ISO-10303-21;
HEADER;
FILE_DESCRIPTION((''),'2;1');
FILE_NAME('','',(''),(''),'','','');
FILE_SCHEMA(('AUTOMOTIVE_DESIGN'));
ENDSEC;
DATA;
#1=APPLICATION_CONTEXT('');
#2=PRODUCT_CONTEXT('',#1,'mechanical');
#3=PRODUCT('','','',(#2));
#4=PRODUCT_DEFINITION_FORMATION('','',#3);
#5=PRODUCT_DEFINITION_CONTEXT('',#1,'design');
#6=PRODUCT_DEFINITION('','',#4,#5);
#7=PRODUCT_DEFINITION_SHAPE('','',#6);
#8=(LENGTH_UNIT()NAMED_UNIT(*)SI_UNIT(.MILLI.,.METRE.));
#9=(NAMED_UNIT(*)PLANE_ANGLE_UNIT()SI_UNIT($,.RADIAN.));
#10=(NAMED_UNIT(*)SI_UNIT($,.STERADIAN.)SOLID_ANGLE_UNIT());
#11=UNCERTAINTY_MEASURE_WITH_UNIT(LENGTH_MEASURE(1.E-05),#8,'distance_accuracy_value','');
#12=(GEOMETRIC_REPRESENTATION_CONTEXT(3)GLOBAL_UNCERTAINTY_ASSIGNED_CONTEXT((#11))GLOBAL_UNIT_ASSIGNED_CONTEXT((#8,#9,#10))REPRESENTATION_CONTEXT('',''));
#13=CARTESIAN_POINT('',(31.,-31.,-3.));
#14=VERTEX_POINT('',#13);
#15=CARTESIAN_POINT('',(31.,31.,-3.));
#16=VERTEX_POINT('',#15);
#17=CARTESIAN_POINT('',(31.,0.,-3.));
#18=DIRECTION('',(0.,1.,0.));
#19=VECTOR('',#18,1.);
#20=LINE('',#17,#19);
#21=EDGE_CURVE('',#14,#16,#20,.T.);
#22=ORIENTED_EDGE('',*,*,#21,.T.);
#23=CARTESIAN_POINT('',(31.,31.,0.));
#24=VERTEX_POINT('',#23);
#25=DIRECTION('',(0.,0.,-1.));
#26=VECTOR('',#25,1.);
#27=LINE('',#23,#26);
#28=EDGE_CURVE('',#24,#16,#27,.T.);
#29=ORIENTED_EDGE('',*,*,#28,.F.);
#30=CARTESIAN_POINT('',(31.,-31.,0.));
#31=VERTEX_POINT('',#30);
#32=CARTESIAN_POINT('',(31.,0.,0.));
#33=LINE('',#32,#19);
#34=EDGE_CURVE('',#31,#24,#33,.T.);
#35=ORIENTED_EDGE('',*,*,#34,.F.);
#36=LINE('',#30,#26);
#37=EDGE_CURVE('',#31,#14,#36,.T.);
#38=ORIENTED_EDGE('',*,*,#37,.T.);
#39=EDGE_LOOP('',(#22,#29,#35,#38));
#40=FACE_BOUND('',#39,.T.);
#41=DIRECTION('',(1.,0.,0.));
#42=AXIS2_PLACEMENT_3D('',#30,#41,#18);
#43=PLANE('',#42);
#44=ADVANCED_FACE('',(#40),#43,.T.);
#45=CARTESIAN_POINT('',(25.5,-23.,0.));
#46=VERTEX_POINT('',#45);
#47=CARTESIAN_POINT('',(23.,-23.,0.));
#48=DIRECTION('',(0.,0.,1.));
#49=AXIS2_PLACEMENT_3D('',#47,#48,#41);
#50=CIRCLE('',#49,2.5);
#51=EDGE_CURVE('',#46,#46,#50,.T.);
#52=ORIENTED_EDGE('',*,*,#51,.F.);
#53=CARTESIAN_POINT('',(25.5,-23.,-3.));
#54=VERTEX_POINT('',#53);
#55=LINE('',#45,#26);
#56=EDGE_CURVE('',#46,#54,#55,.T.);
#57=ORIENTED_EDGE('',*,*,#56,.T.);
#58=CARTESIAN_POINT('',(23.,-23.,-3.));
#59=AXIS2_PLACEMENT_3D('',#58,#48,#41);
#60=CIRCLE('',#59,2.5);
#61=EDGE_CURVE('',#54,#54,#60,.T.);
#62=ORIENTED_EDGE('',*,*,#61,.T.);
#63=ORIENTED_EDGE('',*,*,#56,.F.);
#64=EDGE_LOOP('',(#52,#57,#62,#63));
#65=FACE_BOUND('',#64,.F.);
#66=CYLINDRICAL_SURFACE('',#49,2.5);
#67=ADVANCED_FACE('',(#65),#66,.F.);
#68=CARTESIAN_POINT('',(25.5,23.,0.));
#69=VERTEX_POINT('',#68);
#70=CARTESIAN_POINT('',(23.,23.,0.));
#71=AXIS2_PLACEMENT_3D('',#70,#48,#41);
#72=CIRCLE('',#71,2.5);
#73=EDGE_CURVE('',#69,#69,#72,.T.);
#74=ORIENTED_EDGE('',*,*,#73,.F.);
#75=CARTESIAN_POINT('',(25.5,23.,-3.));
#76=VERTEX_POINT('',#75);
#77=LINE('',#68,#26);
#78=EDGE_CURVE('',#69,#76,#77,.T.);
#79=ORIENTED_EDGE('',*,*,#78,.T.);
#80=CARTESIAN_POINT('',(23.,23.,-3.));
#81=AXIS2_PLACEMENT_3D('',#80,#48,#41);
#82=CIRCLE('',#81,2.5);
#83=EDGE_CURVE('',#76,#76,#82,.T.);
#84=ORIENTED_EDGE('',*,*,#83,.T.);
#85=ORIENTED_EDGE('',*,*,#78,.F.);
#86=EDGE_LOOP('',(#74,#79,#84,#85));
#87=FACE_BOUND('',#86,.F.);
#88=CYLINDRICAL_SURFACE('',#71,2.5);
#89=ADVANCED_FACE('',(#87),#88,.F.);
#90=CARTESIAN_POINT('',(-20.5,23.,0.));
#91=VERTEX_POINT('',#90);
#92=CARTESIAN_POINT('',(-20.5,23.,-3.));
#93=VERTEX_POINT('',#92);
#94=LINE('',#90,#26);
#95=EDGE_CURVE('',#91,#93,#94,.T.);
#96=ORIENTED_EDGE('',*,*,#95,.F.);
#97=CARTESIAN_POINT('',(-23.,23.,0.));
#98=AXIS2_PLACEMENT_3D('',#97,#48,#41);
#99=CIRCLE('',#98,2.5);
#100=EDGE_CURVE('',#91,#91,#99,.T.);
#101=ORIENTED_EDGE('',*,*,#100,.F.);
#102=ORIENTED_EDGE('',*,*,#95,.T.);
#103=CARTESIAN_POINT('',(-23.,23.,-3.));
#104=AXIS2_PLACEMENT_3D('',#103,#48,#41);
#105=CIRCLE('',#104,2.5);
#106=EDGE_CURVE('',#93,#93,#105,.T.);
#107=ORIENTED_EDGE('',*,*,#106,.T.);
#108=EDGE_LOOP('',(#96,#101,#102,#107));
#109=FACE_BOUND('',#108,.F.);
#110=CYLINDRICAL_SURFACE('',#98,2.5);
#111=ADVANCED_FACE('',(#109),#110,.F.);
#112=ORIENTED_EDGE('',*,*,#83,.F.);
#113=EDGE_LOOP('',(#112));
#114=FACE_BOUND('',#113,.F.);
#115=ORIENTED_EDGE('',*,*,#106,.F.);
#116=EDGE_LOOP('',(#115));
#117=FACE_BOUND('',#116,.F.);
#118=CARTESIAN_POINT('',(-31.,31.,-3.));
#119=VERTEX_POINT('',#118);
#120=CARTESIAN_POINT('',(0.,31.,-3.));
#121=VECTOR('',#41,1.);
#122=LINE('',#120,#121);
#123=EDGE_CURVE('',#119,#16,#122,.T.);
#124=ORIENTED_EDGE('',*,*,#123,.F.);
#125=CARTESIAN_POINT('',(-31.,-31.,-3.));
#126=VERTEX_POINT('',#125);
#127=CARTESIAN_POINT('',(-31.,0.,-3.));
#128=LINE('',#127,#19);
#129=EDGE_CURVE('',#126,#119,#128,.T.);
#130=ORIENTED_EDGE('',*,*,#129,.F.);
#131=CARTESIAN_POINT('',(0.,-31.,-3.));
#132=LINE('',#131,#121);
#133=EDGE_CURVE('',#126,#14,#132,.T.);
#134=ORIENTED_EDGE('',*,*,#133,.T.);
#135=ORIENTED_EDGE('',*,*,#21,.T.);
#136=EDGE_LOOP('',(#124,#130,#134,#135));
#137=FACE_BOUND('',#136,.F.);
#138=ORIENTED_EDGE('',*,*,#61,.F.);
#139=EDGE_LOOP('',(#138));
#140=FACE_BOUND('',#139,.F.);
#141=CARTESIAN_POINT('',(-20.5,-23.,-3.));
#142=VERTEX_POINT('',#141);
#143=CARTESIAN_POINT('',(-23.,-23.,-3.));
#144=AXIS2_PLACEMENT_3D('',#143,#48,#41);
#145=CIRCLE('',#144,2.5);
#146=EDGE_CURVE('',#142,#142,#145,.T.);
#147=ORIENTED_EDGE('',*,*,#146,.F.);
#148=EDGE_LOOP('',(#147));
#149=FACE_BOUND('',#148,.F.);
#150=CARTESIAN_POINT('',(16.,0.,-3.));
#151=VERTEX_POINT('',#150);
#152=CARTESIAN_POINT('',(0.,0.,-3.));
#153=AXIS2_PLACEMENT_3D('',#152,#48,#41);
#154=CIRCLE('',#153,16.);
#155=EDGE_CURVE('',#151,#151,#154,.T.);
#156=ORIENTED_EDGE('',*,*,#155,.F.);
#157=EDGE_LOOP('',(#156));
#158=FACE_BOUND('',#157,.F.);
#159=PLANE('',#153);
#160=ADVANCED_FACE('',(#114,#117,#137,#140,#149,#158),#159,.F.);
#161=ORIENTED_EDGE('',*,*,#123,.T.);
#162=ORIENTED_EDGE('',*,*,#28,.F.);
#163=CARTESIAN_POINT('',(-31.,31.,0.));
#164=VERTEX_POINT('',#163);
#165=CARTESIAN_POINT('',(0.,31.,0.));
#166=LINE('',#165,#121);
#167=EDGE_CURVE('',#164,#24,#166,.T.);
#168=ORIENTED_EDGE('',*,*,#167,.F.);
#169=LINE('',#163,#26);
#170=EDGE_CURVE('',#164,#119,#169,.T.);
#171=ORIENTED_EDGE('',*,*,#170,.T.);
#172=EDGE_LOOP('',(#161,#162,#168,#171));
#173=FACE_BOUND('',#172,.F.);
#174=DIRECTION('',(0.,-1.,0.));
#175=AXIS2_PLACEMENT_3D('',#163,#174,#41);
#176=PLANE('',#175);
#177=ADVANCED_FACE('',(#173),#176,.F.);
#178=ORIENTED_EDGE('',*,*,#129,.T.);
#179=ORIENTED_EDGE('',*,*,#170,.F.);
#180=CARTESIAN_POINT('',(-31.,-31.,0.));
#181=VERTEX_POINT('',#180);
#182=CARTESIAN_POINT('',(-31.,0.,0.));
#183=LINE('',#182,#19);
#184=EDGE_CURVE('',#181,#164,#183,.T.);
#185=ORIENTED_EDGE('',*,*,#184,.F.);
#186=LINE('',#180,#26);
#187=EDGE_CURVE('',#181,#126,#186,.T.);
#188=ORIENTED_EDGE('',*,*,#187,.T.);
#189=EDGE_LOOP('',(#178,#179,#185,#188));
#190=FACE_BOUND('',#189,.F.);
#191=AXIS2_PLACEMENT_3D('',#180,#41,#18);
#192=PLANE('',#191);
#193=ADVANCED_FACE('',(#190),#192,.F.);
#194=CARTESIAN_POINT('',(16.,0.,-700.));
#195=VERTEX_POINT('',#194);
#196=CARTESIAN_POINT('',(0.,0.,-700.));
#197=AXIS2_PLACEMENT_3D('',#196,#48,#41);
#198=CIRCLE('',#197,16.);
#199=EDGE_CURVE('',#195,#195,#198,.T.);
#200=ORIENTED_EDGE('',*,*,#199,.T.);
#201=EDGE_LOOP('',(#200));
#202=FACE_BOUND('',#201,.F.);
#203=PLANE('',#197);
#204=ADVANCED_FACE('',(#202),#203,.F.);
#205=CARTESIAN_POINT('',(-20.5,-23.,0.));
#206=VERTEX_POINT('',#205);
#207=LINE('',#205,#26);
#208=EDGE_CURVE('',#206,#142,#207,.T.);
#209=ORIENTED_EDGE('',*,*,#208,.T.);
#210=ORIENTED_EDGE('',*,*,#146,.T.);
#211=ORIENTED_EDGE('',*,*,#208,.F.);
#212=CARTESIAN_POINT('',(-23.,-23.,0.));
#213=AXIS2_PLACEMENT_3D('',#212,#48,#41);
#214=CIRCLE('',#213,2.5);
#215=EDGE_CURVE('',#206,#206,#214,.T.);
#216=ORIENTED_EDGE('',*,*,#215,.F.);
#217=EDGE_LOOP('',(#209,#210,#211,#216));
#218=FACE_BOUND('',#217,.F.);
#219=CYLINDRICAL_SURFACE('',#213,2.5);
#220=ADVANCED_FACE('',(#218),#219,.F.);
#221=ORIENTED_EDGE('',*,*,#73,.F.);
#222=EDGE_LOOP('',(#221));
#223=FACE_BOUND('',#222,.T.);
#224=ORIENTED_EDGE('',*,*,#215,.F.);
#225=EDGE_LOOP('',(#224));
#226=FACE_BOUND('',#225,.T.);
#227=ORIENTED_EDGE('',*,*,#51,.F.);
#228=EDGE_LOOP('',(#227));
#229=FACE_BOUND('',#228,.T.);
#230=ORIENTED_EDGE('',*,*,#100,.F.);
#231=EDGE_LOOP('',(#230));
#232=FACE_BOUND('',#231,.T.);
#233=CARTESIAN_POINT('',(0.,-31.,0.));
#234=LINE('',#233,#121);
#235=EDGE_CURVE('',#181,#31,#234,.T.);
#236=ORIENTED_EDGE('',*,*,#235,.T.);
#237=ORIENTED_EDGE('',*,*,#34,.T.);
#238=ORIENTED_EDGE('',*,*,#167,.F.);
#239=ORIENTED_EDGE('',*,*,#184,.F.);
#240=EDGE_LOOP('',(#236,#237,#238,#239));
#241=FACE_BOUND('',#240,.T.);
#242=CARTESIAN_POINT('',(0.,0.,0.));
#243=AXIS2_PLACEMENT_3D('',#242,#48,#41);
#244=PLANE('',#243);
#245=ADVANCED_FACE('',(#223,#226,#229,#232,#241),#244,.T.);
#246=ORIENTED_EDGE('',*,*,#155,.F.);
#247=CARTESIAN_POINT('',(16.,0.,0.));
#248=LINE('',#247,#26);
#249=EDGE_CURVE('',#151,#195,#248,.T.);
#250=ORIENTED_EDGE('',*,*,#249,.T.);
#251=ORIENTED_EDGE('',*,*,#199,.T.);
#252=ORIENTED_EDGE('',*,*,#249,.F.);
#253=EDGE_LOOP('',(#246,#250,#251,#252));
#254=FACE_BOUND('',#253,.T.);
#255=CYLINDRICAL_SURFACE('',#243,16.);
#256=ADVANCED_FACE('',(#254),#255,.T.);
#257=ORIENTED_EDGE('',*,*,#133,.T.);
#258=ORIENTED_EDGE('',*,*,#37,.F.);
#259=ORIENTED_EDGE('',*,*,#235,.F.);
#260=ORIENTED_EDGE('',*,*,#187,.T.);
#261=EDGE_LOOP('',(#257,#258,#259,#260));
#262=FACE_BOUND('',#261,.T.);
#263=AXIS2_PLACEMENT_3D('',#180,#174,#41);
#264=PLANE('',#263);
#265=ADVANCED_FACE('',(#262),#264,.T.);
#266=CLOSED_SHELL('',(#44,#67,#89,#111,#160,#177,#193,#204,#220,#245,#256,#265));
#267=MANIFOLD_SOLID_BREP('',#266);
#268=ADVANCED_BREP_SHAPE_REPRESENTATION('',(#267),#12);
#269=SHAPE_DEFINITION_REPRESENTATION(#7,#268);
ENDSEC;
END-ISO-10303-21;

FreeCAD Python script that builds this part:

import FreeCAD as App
import Part
import Sketcher
Q = App.Units.Quantity


def add_polygon(sketch, points):
    """Adds a closed chain of lines whose ends are joined by coincident constraints."""
    first, n = sketch.GeometryCount, len(points)
    for a, b in zip(points, points[1:] + points[:1]):
        sketch.addGeometry(Part.LineSegment(App.Vector(*a, 0), App.Vector(*b, 0)), False)
    for i in range(n):
        sketch.addConstraint(Sketcher.Constraint("Coincident", first + i, 2, first + (i + 1) % n, 1))

doc = App.newDocument("Part")
params = doc.addObject("Spreadsheet::Sheet", "Params")
for row, (alias, value) in enumerate([
    ("sketch1_diameter", "32 mm"),
    ("pad1_length", "700 mm"),
    ("sketch2_width", "62 mm"),
    ("pad2_length", "3 mm"),
    ("sketch3_diameter", "5 mm"),
], start=1):
    params.set(f"A{row}", alias)
    params.set(f"B{row}", "=" + value)
    params.setAlias(f"B{row}", alias)

body = doc.addObject("PartDesign::Body", "Body")

sketch1 = doc.addObject("Sketcher::SketchObject", "Sketch")
body.addObject(sketch1)
sketch1.AttachmentSupport = (doc.XY_Plane, [""])
sketch1.MapMode = "FlatFace"
sketch1.addGeometry(Part.Circle(App.Vector(0, 0, 0), App.Vector(0, 0, 1), 16), False)
sketch1.addConstraint([
    Sketcher.Constraint("Coincident", 0, 3, -1, 1),
    Sketcher.Constraint("Diameter", 0, Q("32 mm")),
])
sketch1.setExpression("Constraints[1]", "Params.sketch1_diameter")
pad1 = doc.addObject("PartDesign::Pad", "Pad")
body.addObject(pad1)
pad1.Profile = sketch1
pad1.setExpression("Length", "Params.pad1_length")
pad1.Reversed = True

sketch2 = doc.addObject("Sketcher::SketchObject", "Sketch001")
body.addObject(sketch2)
sketch2.AttachmentSupport = (doc.XY_Plane, [""])
sketch2.MapMode = "FlatFace"
add_polygon(sketch2, [(-31, 31), (-31, -31), (31, -31), (31, 31)])
sketch2.addConstraint([
    Sketcher.Constraint("Vertical", 0),
    Sketcher.Constraint("Horizontal", 1),
    Sketcher.Constraint("Vertical", 2),
    Sketcher.Constraint("Horizontal", 3),
    Sketcher.Constraint("Symmetric", 0, 2, 2, 2, -1, 1),
    Sketcher.Constraint("Equal", 3, 0),
    Sketcher.Constraint("DistanceX", 1, 1, 1, 2, Q("62 mm")),
])
sketch2.setExpression("Constraints[10]", "Params.sketch2_width")
pad2 = doc.addObject("PartDesign::Pad", "Pad001")
body.addObject(pad2)
pad2.Profile = sketch2
pad2.setExpression("Length", "Params.pad2_length")
pad2.Reversed = True

sketch3 = doc.addObject("Sketcher::SketchObject", "Sketch002")
body.addObject(sketch3)
sketch3.AttachmentSupport = (doc.XY_Plane, [""])
sketch3.MapMode = "FlatFace"
sketch3.addGeometry([
    Part.Circle(App.Vector(-23, 23, 0), App.Vector(0, 0, 1), 2.5),
    Part.Circle(App.Vector(23, 23, 0), App.Vector(0, 0, 1), 2.5),
    Part.Circle(App.Vector(23, -23, 0), App.Vector(0, 0, 1), 2.5),
    Part.Circle(App.Vector(-23, -23, 0), App.Vector(0, 0, 1), 2.5),
], False)
sketch3.addConstraint([
    Sketcher.Constraint("Equal", 0, 1),
    Sketcher.Constraint("Equal", 1, 2),
    Sketcher.Constraint("Equal", 2, 3),
    Sketcher.Constraint("Symmetric", 0, 3, 2, 3, -1, 1),
    Sketcher.Constraint("Symmetric", 1, 3, 3, 3, -1, 1),
    Sketcher.Constraint("Symmetric", 0, 3, 1, 3, -2),
    Sketcher.Constraint("Diameter", 0, Q("5 mm")),
    Sketcher.Constraint("DistanceX", 0, 3, -1, 1, Q("23 mm")),
    Sketcher.Constraint("DistanceY", -1, 1, 0, 3, Q("23 mm")),
])
sketch3.setExpression("Constraints[6]", "Params.sketch3_diameter")
pocket1 = doc.addObject("PartDesign::Pocket", "Pocket")
body.addObject(pocket1)
pocket1.Profile = sketch3
pocket1.Type = "ThroughAll"

doc.recompute()
